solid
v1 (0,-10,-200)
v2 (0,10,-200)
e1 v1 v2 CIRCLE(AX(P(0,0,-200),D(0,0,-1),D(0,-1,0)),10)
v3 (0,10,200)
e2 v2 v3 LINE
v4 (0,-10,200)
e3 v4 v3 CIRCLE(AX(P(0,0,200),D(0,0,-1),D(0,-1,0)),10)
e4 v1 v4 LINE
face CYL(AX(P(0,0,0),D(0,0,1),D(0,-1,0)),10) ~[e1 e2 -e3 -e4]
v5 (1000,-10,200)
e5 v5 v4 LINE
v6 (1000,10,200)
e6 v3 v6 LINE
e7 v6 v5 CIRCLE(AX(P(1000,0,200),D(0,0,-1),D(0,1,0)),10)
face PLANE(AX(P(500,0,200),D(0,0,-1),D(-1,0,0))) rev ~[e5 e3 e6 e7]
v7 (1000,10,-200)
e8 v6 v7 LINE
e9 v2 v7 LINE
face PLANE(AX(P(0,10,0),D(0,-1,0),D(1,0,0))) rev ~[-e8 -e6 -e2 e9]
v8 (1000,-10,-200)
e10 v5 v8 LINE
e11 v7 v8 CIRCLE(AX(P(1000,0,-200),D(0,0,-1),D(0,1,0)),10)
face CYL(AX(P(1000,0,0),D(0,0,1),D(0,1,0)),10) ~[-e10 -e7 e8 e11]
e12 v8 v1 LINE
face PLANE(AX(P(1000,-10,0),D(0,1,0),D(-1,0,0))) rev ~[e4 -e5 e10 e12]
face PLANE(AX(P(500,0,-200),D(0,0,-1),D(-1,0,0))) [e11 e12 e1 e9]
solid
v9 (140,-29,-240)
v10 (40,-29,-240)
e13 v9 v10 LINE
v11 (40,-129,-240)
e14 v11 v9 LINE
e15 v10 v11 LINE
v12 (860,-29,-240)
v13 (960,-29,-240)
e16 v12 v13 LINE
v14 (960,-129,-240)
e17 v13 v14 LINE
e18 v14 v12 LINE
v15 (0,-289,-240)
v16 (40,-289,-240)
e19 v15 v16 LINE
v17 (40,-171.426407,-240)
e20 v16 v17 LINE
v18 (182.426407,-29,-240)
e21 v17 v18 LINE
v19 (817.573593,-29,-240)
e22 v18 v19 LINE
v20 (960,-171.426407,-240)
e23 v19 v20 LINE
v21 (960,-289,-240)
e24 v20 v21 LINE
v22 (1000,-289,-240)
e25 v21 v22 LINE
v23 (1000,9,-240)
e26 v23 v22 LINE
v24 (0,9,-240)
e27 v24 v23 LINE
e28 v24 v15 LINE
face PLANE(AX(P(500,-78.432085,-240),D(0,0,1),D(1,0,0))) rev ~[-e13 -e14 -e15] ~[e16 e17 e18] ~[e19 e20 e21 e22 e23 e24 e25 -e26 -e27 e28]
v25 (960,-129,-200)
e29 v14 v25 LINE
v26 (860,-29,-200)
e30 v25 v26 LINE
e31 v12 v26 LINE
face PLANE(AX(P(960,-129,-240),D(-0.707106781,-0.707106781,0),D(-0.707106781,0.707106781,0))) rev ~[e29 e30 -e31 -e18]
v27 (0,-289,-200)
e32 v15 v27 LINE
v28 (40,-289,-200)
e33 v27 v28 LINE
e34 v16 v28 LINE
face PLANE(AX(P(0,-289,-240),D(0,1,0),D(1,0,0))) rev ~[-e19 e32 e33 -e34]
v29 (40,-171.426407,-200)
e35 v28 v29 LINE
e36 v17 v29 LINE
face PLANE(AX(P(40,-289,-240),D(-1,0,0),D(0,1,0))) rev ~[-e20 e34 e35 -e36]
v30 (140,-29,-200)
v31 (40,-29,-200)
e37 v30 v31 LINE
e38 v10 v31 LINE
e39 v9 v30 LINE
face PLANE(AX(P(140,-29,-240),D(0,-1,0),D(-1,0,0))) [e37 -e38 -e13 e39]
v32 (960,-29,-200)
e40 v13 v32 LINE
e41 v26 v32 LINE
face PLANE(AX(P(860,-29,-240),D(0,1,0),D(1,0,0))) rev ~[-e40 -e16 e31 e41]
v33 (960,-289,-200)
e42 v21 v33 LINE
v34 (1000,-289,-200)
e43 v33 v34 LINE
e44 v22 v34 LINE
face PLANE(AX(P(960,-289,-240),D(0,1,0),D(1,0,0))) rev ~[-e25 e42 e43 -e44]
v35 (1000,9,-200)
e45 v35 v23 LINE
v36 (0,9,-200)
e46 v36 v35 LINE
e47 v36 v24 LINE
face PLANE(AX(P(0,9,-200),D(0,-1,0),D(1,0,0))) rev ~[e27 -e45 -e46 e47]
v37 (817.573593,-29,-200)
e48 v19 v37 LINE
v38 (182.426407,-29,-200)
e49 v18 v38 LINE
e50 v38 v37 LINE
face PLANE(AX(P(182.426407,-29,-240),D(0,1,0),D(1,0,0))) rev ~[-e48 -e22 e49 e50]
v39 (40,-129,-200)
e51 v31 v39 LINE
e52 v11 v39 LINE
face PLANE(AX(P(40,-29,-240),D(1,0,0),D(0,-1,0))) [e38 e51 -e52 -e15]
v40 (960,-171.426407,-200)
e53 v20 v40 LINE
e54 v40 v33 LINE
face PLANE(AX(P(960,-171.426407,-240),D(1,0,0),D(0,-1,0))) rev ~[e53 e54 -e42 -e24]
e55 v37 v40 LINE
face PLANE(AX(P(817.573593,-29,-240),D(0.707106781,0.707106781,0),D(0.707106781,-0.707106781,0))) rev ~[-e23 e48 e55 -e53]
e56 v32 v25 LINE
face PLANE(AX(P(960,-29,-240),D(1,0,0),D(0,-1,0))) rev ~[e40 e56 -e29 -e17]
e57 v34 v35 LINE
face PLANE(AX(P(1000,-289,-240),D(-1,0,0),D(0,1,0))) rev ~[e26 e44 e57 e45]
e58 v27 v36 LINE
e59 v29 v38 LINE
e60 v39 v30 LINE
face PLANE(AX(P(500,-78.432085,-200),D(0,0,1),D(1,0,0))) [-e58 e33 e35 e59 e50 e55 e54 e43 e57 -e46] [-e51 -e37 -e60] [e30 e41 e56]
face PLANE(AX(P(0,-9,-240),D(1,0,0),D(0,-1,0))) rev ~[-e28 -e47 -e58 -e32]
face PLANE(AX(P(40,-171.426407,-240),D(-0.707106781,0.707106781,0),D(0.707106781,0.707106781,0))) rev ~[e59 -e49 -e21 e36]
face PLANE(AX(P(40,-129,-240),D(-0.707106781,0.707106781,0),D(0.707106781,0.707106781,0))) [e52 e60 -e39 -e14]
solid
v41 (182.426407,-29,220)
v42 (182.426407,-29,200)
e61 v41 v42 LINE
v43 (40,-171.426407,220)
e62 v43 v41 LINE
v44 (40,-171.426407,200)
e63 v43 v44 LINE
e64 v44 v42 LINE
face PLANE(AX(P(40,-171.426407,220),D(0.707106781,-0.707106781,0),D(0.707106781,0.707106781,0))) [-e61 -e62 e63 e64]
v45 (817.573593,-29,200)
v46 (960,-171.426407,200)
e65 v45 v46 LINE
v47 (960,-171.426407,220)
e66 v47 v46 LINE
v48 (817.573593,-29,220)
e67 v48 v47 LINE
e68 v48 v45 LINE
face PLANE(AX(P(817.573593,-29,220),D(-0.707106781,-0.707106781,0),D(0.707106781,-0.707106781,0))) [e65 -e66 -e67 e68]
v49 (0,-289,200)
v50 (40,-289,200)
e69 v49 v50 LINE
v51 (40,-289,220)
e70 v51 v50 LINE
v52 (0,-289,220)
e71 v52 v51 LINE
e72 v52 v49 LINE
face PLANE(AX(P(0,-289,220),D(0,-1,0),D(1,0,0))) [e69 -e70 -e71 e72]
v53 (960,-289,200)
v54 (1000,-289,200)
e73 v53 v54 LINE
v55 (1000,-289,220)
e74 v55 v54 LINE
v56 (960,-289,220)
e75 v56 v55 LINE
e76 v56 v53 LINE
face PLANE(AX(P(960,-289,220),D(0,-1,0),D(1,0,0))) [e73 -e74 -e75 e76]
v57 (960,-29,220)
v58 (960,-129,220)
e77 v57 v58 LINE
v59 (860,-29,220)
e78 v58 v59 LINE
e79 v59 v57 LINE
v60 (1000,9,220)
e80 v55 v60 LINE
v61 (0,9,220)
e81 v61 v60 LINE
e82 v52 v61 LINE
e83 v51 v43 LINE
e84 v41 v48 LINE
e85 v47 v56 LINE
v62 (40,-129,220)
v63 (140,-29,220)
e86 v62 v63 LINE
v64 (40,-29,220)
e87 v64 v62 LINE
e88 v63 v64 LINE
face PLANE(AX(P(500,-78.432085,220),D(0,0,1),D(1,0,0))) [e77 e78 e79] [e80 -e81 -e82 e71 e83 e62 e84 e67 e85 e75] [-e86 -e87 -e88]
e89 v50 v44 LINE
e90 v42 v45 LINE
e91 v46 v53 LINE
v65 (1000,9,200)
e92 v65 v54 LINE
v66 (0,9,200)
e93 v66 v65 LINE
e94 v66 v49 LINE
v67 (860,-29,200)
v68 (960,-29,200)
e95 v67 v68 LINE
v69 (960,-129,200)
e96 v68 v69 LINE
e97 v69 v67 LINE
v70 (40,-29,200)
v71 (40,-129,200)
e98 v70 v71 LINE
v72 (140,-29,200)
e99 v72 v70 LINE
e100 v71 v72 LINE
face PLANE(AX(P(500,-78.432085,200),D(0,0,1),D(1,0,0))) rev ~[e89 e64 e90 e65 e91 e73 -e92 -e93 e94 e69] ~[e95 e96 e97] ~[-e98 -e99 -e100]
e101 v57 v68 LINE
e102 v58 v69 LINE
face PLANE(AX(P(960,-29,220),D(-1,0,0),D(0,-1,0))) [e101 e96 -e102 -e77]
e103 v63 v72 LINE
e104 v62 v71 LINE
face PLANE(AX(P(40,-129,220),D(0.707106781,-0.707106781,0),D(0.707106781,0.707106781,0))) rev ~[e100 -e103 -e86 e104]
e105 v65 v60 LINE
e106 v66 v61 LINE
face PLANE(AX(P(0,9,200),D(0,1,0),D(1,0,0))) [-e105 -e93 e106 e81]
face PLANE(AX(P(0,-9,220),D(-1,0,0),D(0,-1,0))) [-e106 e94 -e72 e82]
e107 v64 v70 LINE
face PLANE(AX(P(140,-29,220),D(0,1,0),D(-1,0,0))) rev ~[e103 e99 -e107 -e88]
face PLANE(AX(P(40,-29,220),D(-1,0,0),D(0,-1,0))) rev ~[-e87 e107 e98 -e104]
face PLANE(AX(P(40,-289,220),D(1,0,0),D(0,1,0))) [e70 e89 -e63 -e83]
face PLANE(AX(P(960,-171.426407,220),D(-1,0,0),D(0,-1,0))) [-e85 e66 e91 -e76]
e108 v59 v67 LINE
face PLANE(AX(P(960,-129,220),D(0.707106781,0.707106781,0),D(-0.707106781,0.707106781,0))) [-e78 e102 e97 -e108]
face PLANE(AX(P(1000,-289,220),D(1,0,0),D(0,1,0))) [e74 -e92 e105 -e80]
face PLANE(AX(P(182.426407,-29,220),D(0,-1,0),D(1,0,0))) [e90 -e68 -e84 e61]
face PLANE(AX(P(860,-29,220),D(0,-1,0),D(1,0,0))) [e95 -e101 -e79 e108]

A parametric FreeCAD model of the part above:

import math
import FreeCAD as App
import Part
import Sketcher

V = App.Vector
Q = App.Units.Quantity


def add_polygon(sketch, points):
    """Adds a closed chain of lines whose ends are joined by coincident constraints."""
    first, n = sketch.GeometryCount, len(points)
    for a, b in zip(points, points[1:] + points[:1]):
        sketch.addGeometry(Part.LineSegment(App.Vector(*a, 0), App.Vector(*b, 0)), False)
    for i in range(n):
        sketch.addConstraint(Sketcher.Constraint("Coincident", first + i, 2, first + (i + 1) % n, 1))

doc = App.newDocument("Part")
body = doc.addObject("PartDesign::Body", "Body")

# Sketch on XY plane
sketch1 = body.newObject("Sketcher::SketchObject", "Sketch")
sketch1.AttachmentSupport = (doc.getObject("XY_Plane"), [""])
sketch1.MapMode = "FlatFace"
sketch1.addGeometry(Part.LineSegment(V(1000, 10, 0), V(0, 10, 0)), False)
sketch1.addGeometry(Part.ArcOfCircle(Part.Circle(V(0, 0, 0), V(0, 0, 1), 10), math.radians(90), math.radians(270)), False)
sketch1.addGeometry(Part.LineSegment(V(0, -10, 0), V(1000, -10, 0)), False)
sketch1.addGeometry(Part.ArcOfCircle(Part.Circle(V(1000, 0, 0), V(0, 0, 1), 10), math.radians(-90), math.radians(90)), False)
sketch1.addConstraint(Sketcher.Constraint("Tangent", 0, 2, 1, 1))
sketch1.addConstraint(Sketcher.Constraint("Tangent", 1, 2, 2, 1))
sketch1.addConstraint(Sketcher.Constraint("Tangent", 2, 2, 3, 1))
sketch1.addConstraint(Sketcher.Constraint("Tangent", 3, 2, 0, 1))
sketch1.addConstraint(Sketcher.Constraint("Horizontal", 0))
sketch1.addConstraint(Sketcher.Constraint("Horizontal", 2))
sketch1.addConstraint(Sketcher.Constraint("Coincident", 1, 3, -1, 1))
sketch1.addConstraint(Sketcher.Constraint("Radius", 1, Q("10 mm")))
sketch1.addConstraint(Sketcher.Constraint("DistanceX", 0, 2, 0, 1, Q("1000 mm")))
pad1 = body.newObject("PartDesign::Pad", "Pad")
pad1.Profile = sketch1
pad1.Length = 400
pad1.Midplane = True
body2 = doc.addObject("PartDesign::Body", "Body001")

# Sketch on XY plane
sketch2 = body2.newObject("Sketcher::SketchObject", "Sketch001")
sketch2.AttachmentSupport = (doc.getObject("XY_Plane001"), [""])
sketch2.MapMode = "FlatFace"
sketch2.AttachmentOffset = App.Placement(V(0, 0, 200), App.Rotation())
add_polygon(sketch2, [(0, 9), (0, -9), (1000, -9), (1000, 9)])  # lines 0-3
sketch2.addConstraint(Sketcher.Constraint("Vertical", 0))
sketch2.addConstraint(Sketcher.Constraint("Horizontal", 1))
sketch2.addConstraint(Sketcher.Constraint("Vertical", 2))
sketch2.addConstraint(Sketcher.Constraint("Horizontal", 3))
sketch2.addConstraint(Sketcher.Constraint("Symmetric", 0, 2, 3, 2, -1, 1))
sketch2.addConstraint(Sketcher.Constraint("DistanceX", 1, 1, 1, 2, Q("1000 mm")))
sketch2.addConstraint(Sketcher.Constraint("DistanceY", 0, 2, 0, 1, Q("18 mm")))
pad2 = body2.newObject("PartDesign::Pad", "Pad001")
pad2.Profile = sketch2
pad2.Length = 20

# Sketch on XY plane
sketch3 = body2.newObject("Sketcher::SketchObject", "Sketch002")
sketch3.AttachmentSupport = (doc.getObject("XY_Plane001"), [""])
sketch3.MapMode = "FlatFace"
sketch3.AttachmentOffset = App.Placement(V(0, 0, 220), App.Rotation())
add_polygon(sketch3, [(0, -9), (0, -289), (40, -289), (40, -171), (182, -29), (818, -29), (960, -171), (960, -289), (1000, -289), (1000, -9)])  # lines 0-9
add_polygon(sketch3, [(40, -129), (40, -29), (140, -29)])  # lines 10-12
add_polygon(sketch3, [(960, -29), (960, -129), (860, -29)])  # lines 13-15
sketch3.addConstraint(Sketcher.Constraint("Vertical", 0))
sketch3.addConstraint(Sketcher.Constraint("Horizontal", 1))
sketch3.addConstraint(Sketcher.Constraint("Vertical", 2))
sketch3.addConstraint(Sketcher.Constraint("Horizontal", 4))
sketch3.addConstraint(Sketcher.Constraint("Vertical", 6))
sketch3.addConstraint(Sketcher.Constraint("Horizontal", 7))
sketch3.addConstraint(Sketcher.Constraint("Vertical", 8))
sketch3.addConstraint(Sketcher.Constraint("Horizontal", 9))
sketch3.addConstraint(Sketcher.Constraint("Vertical", 10))
sketch3.addConstraint(Sketcher.Constraint("Horizontal", 11))
sketch3.addConstraint(Sketcher.Constraint("Vertical", 13))
sketch3.addConstraint(Sketcher.Constraint("Horizontal", 15))
sketch3.addConstraint(Sketcher.Constraint("PointOnObject", 0, 2, -2))
sketch3.addConstraint(Sketcher.Constraint("Perpendicular", 3, 5))
sketch3.addConstraint(Sketcher.Constraint("Perpendicular", 5, 12))
sketch3.addConstraint(Sketcher.Constraint("Perpendicular", 12, 14))
sketch3.addConstraint(Sketcher.Constraint("Horizontal", 2, 2, 5, 2))
sketch3.addConstraint(Sketcher.Constraint("Horizontal", 1, 2, 6, 2))
sketch3.addConstraint(Sketcher.Constraint("Horizontal", 4, 2, 10, 2))
sketch3.addConstraint(Sketcher.Constraint("Horizontal", 12, 2, 13, 2))
sketch3.addConstraint(Sketcher.Constraint("Horizontal", 11, 2, 14, 2))
sketch3.addConstraint(Sketcher.Constraint("Vertical", 2, 2, 10, 2))
sketch3.addConstraint(Sketcher.Constraint("Vertical", 6, 2, 13, 2))
sketch3.addConstraint(Sketcher.Constraint("Equal", 1, 7))
sketch3.addConstraint(Sketcher.Constraint("Equal", 11, 15))
sketch3.addConstraint(Sketcher.Constraint("DistanceX", 1, 1, 1, 2, Q("40 mm")))
sketch3.addConstraint(Sketcher.Constraint("DistanceX", 9, 2, 9, 1, Q("1000 mm")))
sketch3.addConstraint(Sketcher.Constraint("DistanceX", 11, 1, 11, 2, Q("100 mm")))
sketch3.addConstraint(Sketcher.Constraint("DistanceY", 0, 2, 0, 1, Q("280 mm")))
sketch3.addConstraint(Sketcher.Constraint("DistanceY", 0, 2, -1, 1, Q("289 mm")))
sketch3.addConstraint(Sketcher.Constraint("DistanceY", 3, 2, -1, 1, Q("29 mm")))
sketch3.addConstraint(Sketcher.Constraint("DistanceX", 4, 1, 4, 2, Q("635.147186 mm")))
pad3 = body2.newObject("PartDesign::Pad", "Pad002")
pad3.Profile = sketch3
pad3.Length = 20
pad3.Reversed = True
body3 = doc.addObject("PartDesign::Body", "Body002")

# Sketch on XY plane
sketch4 = body3.newObject("Sketcher::SketchObject", "Sketch003")
sketch4.AttachmentSupport = (doc.getObject("XY_Plane002"), [""])
sketch4.MapMode = "FlatFace"
sketch4.AttachmentOffset = App.Placement(V(0, 0, -200), App.Rotation())
add_polygon(sketch4, [(0, 9), (0, -9), (1000, -9), (1000, 9)])  # lines 0-3
sketch4.addConstraint(Sketcher.Constraint("Vertical", 0))
sketch4.addConstraint(Sketcher.Constraint("Horizontal", 1))
sketch4.addConstraint(Sketcher.Constraint("Vertical", 2))
sketch4.addConstraint(Sketcher.Constraint("Horizontal", 3))
sketch4.addConstraint(Sketcher.Constraint("Symmetric", 0, 2, 3, 2, -1, 1))
sketch4.addConstraint(Sketcher.Constraint("DistanceX", 1, 1, 1, 2, Q("1000 mm")))
sketch4.addConstraint(Sketcher.Constraint("DistanceY", 0, 2, 0, 1, Q("18 mm")))
pad4 = body3.newObject("PartDesign::Pad", "Pad003")
pad4.Profile = sketch4
pad4.Length = 40
pad4.Reversed = True

# Sketch on XY plane
sketch5 = body3.newObject("Sketcher::SketchObject", "Sketch004")
sketch5.AttachmentSupport = (doc.getObject("XY_Plane002"), [""])
sketch5.MapMode = "FlatFace"
sketch5.AttachmentOffset = App.Placement(V(0, 0, -240), App.Rotation())
add_polygon(sketch5, [(0, -9), (0, -289), (40, -289), (40, -171), (182, -29), (818, -29), (960, -171), (960, -289), (1000, -289), (1000, -9)])  # lines 0-9
add_polygon(sketch5, [(40, -129), (40, -29), (140, -29)])  # lines 10-12
add_polygon(sketch5, [(960, -29), (960, -129), (860, -29)])  # lines 13-15
sketch5.addConstraint(Sketcher.Constraint("Vertical", 0))
sketch5.addConstraint(Sketcher.Constraint("Horizontal", 1))
sketch5.addConstraint(Sketcher.Constraint("Vertical", 2))
sketch5.addConstraint(Sketcher.Constraint("Horizontal", 4))
sketch5.addConstraint(Sketcher.Constraint("Vertical", 6))
sketch5.addConstraint(Sketcher.Constraint("Horizontal", 7))
sketch5.addConstraint(Sketcher.Constraint("Vertical", 8))
sketch5.addConstraint(Sketcher.Constraint("Horizontal", 9))
sketch5.addConstraint(Sketcher.Constraint("Vertical", 10))
sketch5.addConstraint(Sketcher.Constraint("Horizontal", 11))
sketch5.addConstraint(Sketcher.Constraint("Vertical", 13))
sketch5.addConstraint(Sketcher.Constraint("Horizontal", 15))
sketch5.addConstraint(Sketcher.Constraint("PointOnObject", 0, 2, -2))
sketch5.addConstraint(Sketcher.Constraint("Perpendicular", 3, 5))
sketch5.addConstraint(Sketcher.Constraint("Perpendicular", 5, 12))
sketch5.addConstraint(Sketcher.Constraint("Perpendicular", 12, 14))
sketch5.addConstraint(Sketcher.Constraint("Horizontal", 2, 2, 5, 2))
sketch5.addConstraint(Sketcher.Constraint("Horizontal", 1, 2, 6, 2))
sketch5.addConstraint(Sketcher.Constraint("Horizontal", 4, 2, 10, 2))
sketch5.addConstraint(Sketcher.Constraint("Horizontal", 12, 2, 13, 2))
sketch5.addConstraint(Sketcher.Constraint("Horizontal", 11, 2, 14, 2))
sketch5.addConstraint(Sketcher.Constraint("Vertical", 2, 2, 10, 2))
sketch5.addConstraint(Sketcher.Constraint("Vertical", 6, 2, 13, 2))
sketch5.addConstraint(Sketcher.Constraint("Equal", 1, 7))
sketch5.addConstraint(Sketcher.Constraint("Equal", 11, 15))
sketch5.addConstraint(Sketcher.Constraint("DistanceX", 1, 1, 1, 2, Q("40 mm")))
sketch5.addConstraint(Sketcher.Constraint("DistanceX", 9, 2, 9, 1, Q("1000 mm")))
sketch5.addConstraint(Sketcher.Constraint("DistanceX", 11, 1, 11, 2, Q("100 mm")))
sketch5.addConstraint(Sketcher.Constraint("DistanceY", 0, 2, 0, 1, Q("280 mm")))
sketch5.addConstraint(Sketcher.Constraint("DistanceY", 0, 2, -1, 1, Q("289 mm")))
sketch5.addConstraint(Sketcher.Constraint("DistanceY", 3, 2, -1, 1, Q("29 mm")))
sketch5.addConstraint(Sketcher.Constraint("DistanceX", 4, 1, 4, 2, Q("635.147186 mm")))
pad5 = body3.newObject("PartDesign::Pad", "Pad004")
pad5.Profile = sketch5
pad5.Length = 40

doc.recompute()
